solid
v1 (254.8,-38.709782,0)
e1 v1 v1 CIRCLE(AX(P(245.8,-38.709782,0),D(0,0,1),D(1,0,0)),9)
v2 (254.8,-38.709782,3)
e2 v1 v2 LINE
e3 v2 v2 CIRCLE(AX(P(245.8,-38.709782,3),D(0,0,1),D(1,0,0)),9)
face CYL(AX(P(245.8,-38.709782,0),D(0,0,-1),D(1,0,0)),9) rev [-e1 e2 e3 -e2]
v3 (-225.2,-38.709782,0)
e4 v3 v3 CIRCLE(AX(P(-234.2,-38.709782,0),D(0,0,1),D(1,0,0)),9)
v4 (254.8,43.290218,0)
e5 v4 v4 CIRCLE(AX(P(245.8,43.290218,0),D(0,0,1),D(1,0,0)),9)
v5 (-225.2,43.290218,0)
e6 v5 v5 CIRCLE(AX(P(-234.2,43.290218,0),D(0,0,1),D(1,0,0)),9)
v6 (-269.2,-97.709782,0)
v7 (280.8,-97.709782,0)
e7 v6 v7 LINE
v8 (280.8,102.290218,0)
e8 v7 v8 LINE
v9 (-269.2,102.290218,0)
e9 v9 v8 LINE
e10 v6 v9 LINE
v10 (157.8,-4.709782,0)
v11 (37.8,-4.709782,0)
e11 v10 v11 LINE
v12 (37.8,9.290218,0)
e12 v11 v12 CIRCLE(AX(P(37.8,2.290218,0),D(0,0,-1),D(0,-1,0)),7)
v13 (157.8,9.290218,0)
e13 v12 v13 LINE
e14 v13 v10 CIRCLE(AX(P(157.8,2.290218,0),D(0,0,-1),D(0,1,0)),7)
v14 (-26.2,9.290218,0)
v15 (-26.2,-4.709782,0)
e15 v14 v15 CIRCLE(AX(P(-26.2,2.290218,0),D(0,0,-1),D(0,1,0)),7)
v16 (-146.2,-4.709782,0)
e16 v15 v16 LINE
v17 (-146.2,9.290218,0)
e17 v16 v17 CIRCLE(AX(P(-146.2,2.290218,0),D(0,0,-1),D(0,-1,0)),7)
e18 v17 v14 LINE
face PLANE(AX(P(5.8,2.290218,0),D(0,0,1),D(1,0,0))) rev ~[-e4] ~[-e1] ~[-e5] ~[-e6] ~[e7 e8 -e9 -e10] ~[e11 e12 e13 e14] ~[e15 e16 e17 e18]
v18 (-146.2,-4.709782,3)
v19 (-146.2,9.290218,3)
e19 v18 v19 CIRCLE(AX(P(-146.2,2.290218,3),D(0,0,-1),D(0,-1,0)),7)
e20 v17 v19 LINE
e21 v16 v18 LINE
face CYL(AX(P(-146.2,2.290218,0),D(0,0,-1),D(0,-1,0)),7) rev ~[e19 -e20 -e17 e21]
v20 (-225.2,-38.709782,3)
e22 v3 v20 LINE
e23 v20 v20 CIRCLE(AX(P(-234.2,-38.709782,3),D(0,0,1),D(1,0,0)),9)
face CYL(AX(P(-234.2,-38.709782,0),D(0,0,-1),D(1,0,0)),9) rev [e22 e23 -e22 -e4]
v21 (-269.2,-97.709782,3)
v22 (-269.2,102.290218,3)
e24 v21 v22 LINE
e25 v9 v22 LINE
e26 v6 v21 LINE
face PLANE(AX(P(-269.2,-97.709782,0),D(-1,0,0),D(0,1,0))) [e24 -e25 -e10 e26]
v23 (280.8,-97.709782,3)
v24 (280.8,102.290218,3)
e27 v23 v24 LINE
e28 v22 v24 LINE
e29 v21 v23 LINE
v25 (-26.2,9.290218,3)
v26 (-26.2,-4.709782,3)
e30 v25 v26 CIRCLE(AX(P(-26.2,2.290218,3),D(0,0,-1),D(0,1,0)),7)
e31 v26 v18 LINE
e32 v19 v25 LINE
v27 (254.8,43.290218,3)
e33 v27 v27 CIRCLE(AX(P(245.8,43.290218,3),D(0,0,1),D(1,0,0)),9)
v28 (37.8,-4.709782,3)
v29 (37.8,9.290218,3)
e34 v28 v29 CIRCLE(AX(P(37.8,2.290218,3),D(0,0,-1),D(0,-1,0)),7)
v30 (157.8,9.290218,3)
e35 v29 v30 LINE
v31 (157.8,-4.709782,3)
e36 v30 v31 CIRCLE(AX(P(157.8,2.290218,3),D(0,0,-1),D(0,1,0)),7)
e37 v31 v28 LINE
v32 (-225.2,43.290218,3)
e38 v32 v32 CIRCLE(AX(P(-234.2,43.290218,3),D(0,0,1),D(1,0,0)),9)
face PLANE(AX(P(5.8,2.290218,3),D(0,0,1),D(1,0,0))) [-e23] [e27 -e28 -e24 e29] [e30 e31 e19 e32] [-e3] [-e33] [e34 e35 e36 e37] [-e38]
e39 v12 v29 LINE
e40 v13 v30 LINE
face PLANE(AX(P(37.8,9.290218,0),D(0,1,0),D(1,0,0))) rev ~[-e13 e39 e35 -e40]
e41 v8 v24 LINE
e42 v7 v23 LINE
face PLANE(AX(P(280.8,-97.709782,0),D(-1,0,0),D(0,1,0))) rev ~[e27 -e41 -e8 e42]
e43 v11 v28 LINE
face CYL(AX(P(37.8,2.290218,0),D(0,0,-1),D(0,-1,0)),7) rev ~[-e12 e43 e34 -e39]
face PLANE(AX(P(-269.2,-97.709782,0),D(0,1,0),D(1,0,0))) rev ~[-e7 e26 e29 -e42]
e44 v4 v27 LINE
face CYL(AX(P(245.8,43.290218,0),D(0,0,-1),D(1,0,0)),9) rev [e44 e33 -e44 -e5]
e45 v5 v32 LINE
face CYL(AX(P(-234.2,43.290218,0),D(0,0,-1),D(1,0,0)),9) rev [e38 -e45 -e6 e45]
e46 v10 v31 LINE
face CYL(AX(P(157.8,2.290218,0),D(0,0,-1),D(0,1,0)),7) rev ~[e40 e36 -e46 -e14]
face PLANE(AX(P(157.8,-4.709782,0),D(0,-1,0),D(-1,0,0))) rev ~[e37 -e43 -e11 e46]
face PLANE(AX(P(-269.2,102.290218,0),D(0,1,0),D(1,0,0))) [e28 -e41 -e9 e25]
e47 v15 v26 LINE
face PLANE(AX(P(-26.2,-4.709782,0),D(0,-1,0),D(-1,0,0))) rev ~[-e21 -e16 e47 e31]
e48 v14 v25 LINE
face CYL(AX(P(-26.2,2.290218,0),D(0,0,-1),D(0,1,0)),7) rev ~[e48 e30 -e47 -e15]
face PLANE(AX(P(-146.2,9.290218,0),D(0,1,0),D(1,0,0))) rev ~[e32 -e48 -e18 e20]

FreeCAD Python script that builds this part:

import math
import FreeCAD as App
import Part
import Sketcher
from FreeCAD import Vector

doc = App.newDocument("Part")
params = doc.addObject("Spreadsheet::Sheet", "Params")
for row, (alias, value) in enumerate([
    ("sketch1_diameter", "18 mm"),
    ("sketch1_radius", "7 mm"),
    ("sketch1_width", "550 mm"),
    ("sketch1_width2", "120 mm"),
    ("sketch1_height", "200 mm"),
    ("pad1_length", "3 mm"),
], start=1):
    params.set(f"A{row}", alias)
    params.set(f"B{row}", "=" + value)
    params.setAlias(f"B{row}", alias)

body = doc.addObject("PartDesign::Body", "Body")

sketch1 = body.newObject("Sketcher::SketchObject", "Sketch")
sketch1.AttachmentSupport = (doc.getObject("XY_Plane"), [""])
sketch1.MapMode = "FlatFace"
sketch1.addGeometry([
    Part.LineSegment(Vector(-269.2, 102.290218, 0), Vector(-269.2, -97.709782, 0)),
    Part.LineSegment(Vector(-269.2, -97.709782, 0), Vector(280.8, -97.709782, 0)),
    Part.LineSegment(Vector(280.8, -97.709782, 0), Vector(280.8, 102.290218, 0)),
    Part.LineSegment(Vector(280.8, 102.290218, 0), Vector(-269.2, 102.290218, 0)),
    Part.Circle(Vector(-234.2, -38.709782, 0), Vector(0, 0, 1), 9),
    Part.Circle(Vector(245.8, -38.709782, 0), Vector(0, 0, 1), 9),
    Part.ArcOfCircle(Part.Circle(Vector(-146.2, 2.290218, 0), Vector(0, 0, 1), 7), math.radians(90), math.radians(270)),
    Part.LineSegment(Vector(-146.2, 9.290218, 0), Vector(-26.2, 9.290218, 0)),
    Part.ArcOfCircle(Part.Circle(Vector(-26.2, 2.290218, 0), Vector(0, 0, 1), 7), math.radians(-90), math.radians(90)),
    Part.LineSegment(Vector(-26.2, -4.709782, 0), Vector(-146.2, -4.709782, 0)),
    Part.Circle(Vector(-234.2, 43.290218, 0), Vector(0, 0, 1), 9),
    Part.LineSegment(Vector(157.8, -4.709782, 0), Vector(37.8, -4.709782, 0)),
    Part.ArcOfCircle(Part.Circle(Vector(37.8, 2.290218, 0), Vector(0, 0, 1), 7), math.radians(90), math.radians(270)),
    Part.LineSegment(Vector(37.8, 9.290218, 0), Vector(157.8, 9.290218, 0)),
    Part.ArcOfCircle(Part.Circle(Vector(157.8, 2.290218, 0), Vector(0, 0, 1), 7), math.radians(-90), math.radians(90)),
    Part.Circle(Vector(245.8, 43.290218, 0), Vector(0, 0, 1), 9),
], False)
sketch1.addConstraint([
    Sketcher.Constraint("Coincident", 0, 2, 1, 1),
    Sketcher.Constraint("Coincident", 1, 2, 2, 1),
    Sketcher.Constraint("Coincident", 2, 2, 3, 1),
    Sketcher.Constraint("Coincident", 3, 2, 0, 1),
    Sketcher.Constraint("Tangent", 6, 1, 7, 1),
    Sketcher.Constraint("Tangent", 7, 2, 8, 2),
    Sketcher.Constraint("Tangent", 8, 1, 9, 1),
    Sketcher.Constraint("Tangent", 9, 2, 6, 2),
    Sketcher.Constraint("Tangent", 11, 2, 12, 2),
    Sketcher.Constraint("Tangent", 12, 1, 13, 1),
    Sketcher.Constraint("Tangent", 13, 2, 14, 2),
    Sketcher.Constraint("Tangent", 14, 1, 11, 1),
    Sketcher.Constraint("Vertical", 0),
    Sketcher.Constraint("Horizontal", 1),
    Sketcher.Constraint("Vertical", 2),
    Sketcher.Constraint("Horizontal", 3),
    Sketcher.Constraint("Horizontal", 7),
    Sketcher.Constraint("Horizontal", 9),
    Sketcher.Constraint("Horizontal", 11),
    Sketcher.Constraint("Horizontal", 13),
    Sketcher.Constraint("Equal", 4, 5),
    Sketcher.Constraint("Equal", 5, 10),
    Sketcher.Constraint("Equal", 8, 12),
    Sketcher.Constraint("Equal", 10, 15),
    Sketcher.Constraint("Horizontal", 4, 3, 5, 3),
    Sketcher.Constraint("Horizontal", 8, 3, 12, 3),
    Sketcher.Constraint("Horizontal", 10, 3, 15, 3),
    Sketcher.Constraint("Vertical", 4, 3, 10, 3),
    Sketcher.Constraint("Vertical", 5, 3, 15, 3),
    Sketcher.Constraint("Equal", 9, 11),
    Sketcher.Constraint("Diameter", 4, 18.0),
    Sketcher.Constraint("Radius", 6, 7.0),
    Sketcher.Constraint("DistanceX", 1, 1, 1, 2, 550.0),
    Sketcher.Constraint("DistanceX", 7, 1, 7, 2, 120.0),
    Sketcher.Constraint("DistanceY", 0, 2, 0, 1, 200.0),
    Sketcher.Constraint("DistanceX", 4, 3, 5, 3, 480.0),
    Sketcher.Constraint("DistanceX", 4, 3, 6, 3, 88.0),
    Sketcher.Constraint("DistanceY", 4, 3, 6, 3, 41.0),
    Sketcher.Constraint("DistanceY", 4, 3, 10, 3, 82.0),
    Sketcher.Constraint("DistanceX", 8, 3, 12, 3, 64.0),
    Sketcher.Constraint("DistanceX", 0, 2, 4, 3, 35.0),
    Sketcher.Constraint("DistanceY", 0, 2, 4, 3, 59.0),
    Sketcher.Constraint("DistanceX", 4, 3, -1, 1, 234.2),
    Sketcher.Constraint("DistanceY", 4, 3, -1, 1, 38.709782),
])
sketch1.setExpression("Constraints[30]", "Params.sketch1_diameter")
sketch1.setExpression("Constraints[31]", "Params.sketch1_radius")
sketch1.setExpression("Constraints[32]", "Params.sketch1_width")
sketch1.setExpression("Constraints[33]", "Params.sketch1_width2")
sketch1.setExpression("Constraints[34]", "Params.sketch1_height")
pad1 = body.newObject("PartDesign::Pad", "Pad")
pad1.Profile = sketch1
pad1.setExpression("Length", "Params.pad1_length")

doc.recompute()
